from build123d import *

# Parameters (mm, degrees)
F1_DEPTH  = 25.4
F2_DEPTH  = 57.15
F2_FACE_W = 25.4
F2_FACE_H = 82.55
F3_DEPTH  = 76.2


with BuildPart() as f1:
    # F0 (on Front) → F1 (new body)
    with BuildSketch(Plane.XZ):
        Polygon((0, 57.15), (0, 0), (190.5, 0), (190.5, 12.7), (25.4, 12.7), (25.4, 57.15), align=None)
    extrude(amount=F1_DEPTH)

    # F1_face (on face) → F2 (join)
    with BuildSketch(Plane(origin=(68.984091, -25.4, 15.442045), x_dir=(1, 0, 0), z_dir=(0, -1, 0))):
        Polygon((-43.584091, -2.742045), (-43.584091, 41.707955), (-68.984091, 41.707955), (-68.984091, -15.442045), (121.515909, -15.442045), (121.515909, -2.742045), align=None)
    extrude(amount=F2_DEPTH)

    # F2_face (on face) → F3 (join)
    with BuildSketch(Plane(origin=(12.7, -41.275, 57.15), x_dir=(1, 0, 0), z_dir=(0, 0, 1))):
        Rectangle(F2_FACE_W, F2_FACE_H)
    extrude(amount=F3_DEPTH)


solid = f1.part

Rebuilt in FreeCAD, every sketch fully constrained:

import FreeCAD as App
import Part
import Sketcher
Q = App.Units.Quantity


def add_polygon(sketch, points):
    """Adds a closed chain of lines whose ends are joined by coincident constraints."""
    first, n = sketch.GeometryCount, len(points)
    for a, b in zip(points, points[1:] + points[:1]):
        sketch.addGeometry(Part.LineSegment(App.Vector(*a, 0), App.Vector(*b, 0)), False)
    for i in range(n):
        sketch.addConstraint(Sketcher.Constraint("Coincident", first + i, 2, first + (i + 1) % n, 1))

doc = App.newDocument("Part")
body = doc.addObject("PartDesign::Body", "Body")

# Sketch on XZ plane
sketch1 = body.newObject("Sketcher::SketchObject", "Sketch")
sketch1.AttachmentSupport = (doc.getObject("XZ_Plane"), [""])
sketch1.MapMode = "FlatFace"
add_polygon(sketch1, [(0, 57.15), (0, 0), (190.5, 0), (190.5, 12.7), (25.4, 12.7), (25.4, 57.15)])  # lines 0-5
sketch1.addConstraint([
    Sketcher.Constraint("Vertical", 0),
    Sketcher.Constraint("Horizontal", 1),
    Sketcher.Constraint("Vertical", 2),
    Sketcher.Constraint("Horizontal", 3),
    Sketcher.Constraint("Vertical", 4),
    Sketcher.Constraint("Horizontal", 5),
    Sketcher.Constraint("Coincident", 0, 2, -1, 1),
    Sketcher.Constraint("DistanceX", 5, 2, 5, 1, Q("1 in")),
    Sketcher.Constraint("DistanceX", 1, 1, 1, 2, Q("7.5 in")),
    Sketcher.Constraint("DistanceY", 2, 1, 2, 2, Q("0.5 in")),
    Sketcher.Constraint("DistanceY", 0, 2, 0, 1, Q("2.25 in")),
])
pad1 = body.newObject("PartDesign::Pad", "Pad")
pad1.Profile = sketch1
pad1.Length = Q("1 in")

# Sketch on XZ plane
sketch2 = body.newObject("Sketcher::SketchObject", "Sketch001")
sketch2.AttachmentSupport = (doc.getObject("XZ_Plane"), [""])
sketch2.MapMode = "FlatFace"
sketch2.AttachmentOffset = App.Placement(App.Vector(0, 0, 1 * 25.4), App.Rotation())
add_polygon(sketch2, [(25.4, 12.7), (25.4, 57.15), (0, 57.15), (0, 0), (190.5, 0), (190.5, 12.7)])  # lines 0-5
sketch2.addConstraint([
    Sketcher.Constraint("Vertical", 0),
    Sketcher.Constraint("Horizontal", 1),
    Sketcher.Constraint("Vertical", 2),
    Sketcher.Constraint("Horizontal", 3),
    Sketcher.Constraint("Vertical", 4),
    Sketcher.Constraint("Horizontal", 5),
    Sketcher.Constraint("Coincident", 2, 2, -1, 1),
    Sketcher.Constraint("DistanceX", 1, 2, 1, 1, Q("1 in")),
    Sketcher.Constraint("DistanceX", 3, 1, 3, 2, Q("7.5 in")),
    Sketcher.Constraint("DistanceY", 4, 1, 4, 2, Q("0.5 in")),
    Sketcher.Constraint("DistanceY", 0, 1, 0, 2, Q("1.75 in")),
])
pad2 = body.newObject("PartDesign::Pad", "Pad001")
pad2.Profile = sketch2
pad2.Length = Q("2.25 in")

# Sketch on XY plane
sketch3 = body.newObject("Sketcher::SketchObject", "Sketch002")
sketch3.AttachmentSupport = (doc.getObject("XY_Plane"), [""])
sketch3.MapMode = "FlatFace"
sketch3.AttachmentOffset = App.Placement(App.Vector(0, 0, 2.25 * 25.4), App.Rotation())
add_polygon(sketch3, [(0, 0), (0, -82.55), (25.4, -82.55), (25.4, 0)])  # lines 0-3
sketch3.addConstraint([
    Sketcher.Constraint("Vertical", 0),
    Sketcher.Constraint("Horizontal", 1),
    Sketcher.Constraint("Vertical", 2),
    Sketcher.Constraint("Horizontal", 3),
    Sketcher.Constraint("Coincident", 3, 2, -1, 1),
    Sketcher.Constraint("DistanceX", 1, 1, 1, 2, Q("1 in")),
    Sketcher.Constraint("DistanceY", 0, 2, 0, 1, Q("3.25 in")),
])
pad3 = body.newObject("PartDesign::Pad", "Pad002")
pad3.Profile = sketch3
pad3.Length = Q("3 in")

doc.recompute()
